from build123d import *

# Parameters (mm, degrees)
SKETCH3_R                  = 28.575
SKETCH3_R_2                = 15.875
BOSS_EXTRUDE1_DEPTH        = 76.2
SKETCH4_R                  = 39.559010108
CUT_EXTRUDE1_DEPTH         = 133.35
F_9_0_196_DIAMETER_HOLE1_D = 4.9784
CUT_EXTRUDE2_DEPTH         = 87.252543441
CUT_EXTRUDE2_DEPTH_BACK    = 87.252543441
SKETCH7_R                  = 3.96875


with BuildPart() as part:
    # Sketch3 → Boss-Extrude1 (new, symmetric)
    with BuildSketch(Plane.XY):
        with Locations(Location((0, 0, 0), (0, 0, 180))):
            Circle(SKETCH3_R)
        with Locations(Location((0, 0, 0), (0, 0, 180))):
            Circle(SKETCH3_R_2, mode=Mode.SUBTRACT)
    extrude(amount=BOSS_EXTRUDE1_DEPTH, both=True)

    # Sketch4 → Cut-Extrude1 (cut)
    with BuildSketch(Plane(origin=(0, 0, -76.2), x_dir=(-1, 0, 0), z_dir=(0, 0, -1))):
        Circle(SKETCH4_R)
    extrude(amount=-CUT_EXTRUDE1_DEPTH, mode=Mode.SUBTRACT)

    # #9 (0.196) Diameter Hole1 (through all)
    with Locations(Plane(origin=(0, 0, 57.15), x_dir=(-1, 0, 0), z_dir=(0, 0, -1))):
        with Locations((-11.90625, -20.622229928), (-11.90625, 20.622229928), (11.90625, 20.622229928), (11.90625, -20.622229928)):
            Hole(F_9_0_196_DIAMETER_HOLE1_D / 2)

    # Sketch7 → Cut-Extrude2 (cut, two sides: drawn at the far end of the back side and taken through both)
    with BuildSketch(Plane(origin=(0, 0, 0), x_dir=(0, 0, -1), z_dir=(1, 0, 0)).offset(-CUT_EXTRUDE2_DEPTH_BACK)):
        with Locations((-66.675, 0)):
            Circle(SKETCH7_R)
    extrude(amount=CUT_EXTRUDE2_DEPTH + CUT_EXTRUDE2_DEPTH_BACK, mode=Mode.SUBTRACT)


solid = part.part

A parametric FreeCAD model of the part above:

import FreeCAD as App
import Part
import Sketcher
from FreeCAD import Vector
Q = App.Units.Quantity

doc = App.newDocument("Part")
params = doc.addObject("Spreadsheet::Sheet", "Params")
for row, (alias, value) in enumerate([
    ("sketch1_diameter", "2.25 in"),
    ("sketch1_diameter2", "1.25 in"),
    ("pad1_length", "6 in"),
    ("pocket1_length", "5.25 in"),
    ("sketch3_diameter", "0.196 in"),
    ("hole_diameter", "0.196 in"),
    ("sketch4_diameter", "0.3125 in"),
], start=1):
    params.set(f"A{row}", alias)
    params.set(f"B{row}", "=" + value)
    params.setAlias(f"B{row}", alias)

body = doc.addObject("PartDesign::Body", "Body")

# Sketch on XY plane
sketch1 = body.newObject("Sketcher::SketchObject", "Sketch")
sketch1.AttachmentSupport = (doc.getObject("XY_Plane"), [""])
sketch1.MapMode = "FlatFace"
sketch1.addGeometry([
    Part.Circle(Vector(0, 0, 0), Vector(0, 0, 1), 29),
    Part.Circle(Vector(0, 0, 0), Vector(0, 0, 1), 16),
], False)
sketch1.addConstraint([
    Sketcher.Constraint("Coincident", 0, 3, -1, 1),
    Sketcher.Constraint("Coincident", 1, 3, -1, 1),
    Sketcher.Constraint("Diameter", 0, Q("2.25 in")),
    Sketcher.Constraint("Diameter", 1, Q("1.25 in")),
])
sketch1.setExpression("Constraints[2]", "Params.sketch1_diameter")
sketch1.setExpression("Constraints[3]", "Params.sketch1_diameter2")
pad1 = body.newObject("PartDesign::Pad", "Pad")
pad1.Profile = sketch1
pad1.setExpression("Length", "Params.pad1_length")
pad1.Midplane = True

# Sketch on XY plane
sketch2 = body.newObject("Sketcher::SketchObject", "Sketch001")
sketch2.AttachmentSupport = (doc.getObject("XY_Plane"), [""])
sketch2.MapMode = "FlatFace"
sketch2.AttachmentOffset = App.Placement(Vector(0, 0, -3 * 25.4), App.Rotation())
sketch2.addGeometry(Part.Circle(Vector(0, 0, 0), Vector(0, 0, 1), 40), False)
sketch2.addConstraint([
    Sketcher.Constraint("Coincident", 0, 3, -1, 1),
    Sketcher.Constraint("Diameter", 0, 79.11802),
])
pocket1 = body.newObject("PartDesign::Pocket", "Pocket")
pocket1.Profile = sketch2
pocket1.setExpression("Length", "Params.pocket1_length")
pocket1.Reversed = True

# Sketch on XY plane
sketch3 = body.newObject("Sketcher::SketchObject", "Sketch002")
sketch3.AttachmentSupport = (doc.getObject("XY_Plane"), [""])
sketch3.MapMode = "FlatFace"
sketch3.AttachmentOffset = App.Placement(Vector(0, 0, 2.25 * 25.4), App.Rotation())
sketch3.addGeometry([
    Part.Circle(Vector(11.9, -20.6, 0), Vector(0, 0, 1), 2.5),
    Part.Circle(Vector(11.9, 20.6, 0), Vector(0, 0, 1), 2.5),
    Part.Circle(Vector(-11.9, 20.6, 0), Vector(0, 0, 1), 2.5),
    Part.Circle(Vector(-11.9, -20.6, 0), Vector(0, 0, 1), 2.5),
], False)
sketch3.addConstraint([
    Sketcher.Constraint("Equal", 0, 1),
    Sketcher.Constraint("Equal", 1, 2),
    Sketcher.Constraint("Equal", 2, 3),
    Sketcher.Constraint("Symmetric", 0, 3, 2, 3, -1, 1),
    Sketcher.Constraint("Symmetric", 1, 3, 3, 3, -1, 1),
    Sketcher.Constraint("Symmetric", 1, 3, 2, 3, -2),
    Sketcher.Constraint("Diameter", 0, Q("0.196 in")),
    Sketcher.Constraint("DistanceX", -1, 1, 0, 3, Q("0.46875 in")),
    Sketcher.Constraint("DistanceY", 0, 3, -1, 1, 20.62223),
])
sketch3.setExpression("Constraints[6]", "Params.sketch3_diameter")
doc.recompute()
hole = body.newObject("PartDesign::Hole", "Hole")
hole.Profile = sketch3
hole.ThreadType = "None"
hole.setExpression("Diameter", "Params.hole_diameter")
hole.DepthType = "ThroughAll"
hole.Reversed = True

# Sketch on YZ plane
sketch4 = body.newObject("Sketcher::SketchObject", "Sketch003")
sketch4.AttachmentSupport = (doc.getObject("YZ_Plane"), [""])
sketch4.MapMode = "FlatFace"
sketch4.addGeometry(Part.Circle(Vector(0, 66.7, 0), Vector(0, 0, 1), 4), False)
sketch4.addConstraint([
    Sketcher.Constraint("PointOnObject", 0, 3, -2),
    Sketcher.Constraint("Diameter", 0, Q("0.3125 in")),
    Sketcher.Constraint("DistanceY", -1, 1, 0, 3, Q("2.625 in")),
])
sketch4.setExpression("Constraints[1]", "Params.sketch4_diameter")
pocket2 = body.newObject("PartDesign::Pocket", "Pocket001")
pocket2.Profile = sketch4
pocket2.Type = "ThroughAll"
pocket2.Midplane = True

doc.recompute()
